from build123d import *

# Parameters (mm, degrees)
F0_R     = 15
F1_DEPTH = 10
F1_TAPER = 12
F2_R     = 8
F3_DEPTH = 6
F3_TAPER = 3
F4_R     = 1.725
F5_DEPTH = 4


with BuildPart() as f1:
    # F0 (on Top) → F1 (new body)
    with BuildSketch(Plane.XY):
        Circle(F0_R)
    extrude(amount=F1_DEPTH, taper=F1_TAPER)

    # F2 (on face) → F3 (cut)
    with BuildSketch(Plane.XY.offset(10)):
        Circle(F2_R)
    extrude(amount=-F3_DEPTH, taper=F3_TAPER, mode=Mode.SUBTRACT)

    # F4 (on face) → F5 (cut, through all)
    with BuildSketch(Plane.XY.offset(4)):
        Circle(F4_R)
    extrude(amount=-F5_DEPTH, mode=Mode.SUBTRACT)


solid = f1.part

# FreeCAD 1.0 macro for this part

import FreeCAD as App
import Part
import Sketcher

V = App.Vector

doc = App.newDocument("Part")
body = doc.addObject("PartDesign::Body", "Body")

# Sketch on XY plane
sketch1 = body.newObject("Sketcher::SketchObject", "Sketch")
sketch1.AttachmentSupport = (doc.getObject("XY_Plane"), [""])
sketch1.MapMode = "FlatFace"
sketch1.addGeometry(Part.Circle(V(0, 0, 0), V(0, 0, 1), 15), False)
sketch1.addConstraint(Sketcher.Constraint("Coincident", 0, 3, -1, 1))
sketch1.addConstraint(Sketcher.Constraint("Diameter", 0, 30.0))
pad1 = body.newObject("PartDesign::Pad", "Pad")
pad1.Profile = sketch1
pad1.Length = 10
pad1.TaperAngle = -12

# Sketch on XY plane
sketch2 = body.newObject("Sketcher::SketchObject", "Sketch001")
sketch2.AttachmentSupport = (doc.getObject("XY_Plane"), [""])
sketch2.MapMode = "FlatFace"
sketch2.AttachmentOffset = App.Placement(V(0, 0, 10), App.Rotation())
sketch2.addGeometry(Part.Circle(V(0, 0, 0), V(0, 0, 1), 8), False)
sketch2.addConstraint(Sketcher.Constraint("Coincident", 0, 3, -1, 1))
sketch2.addConstraint(Sketcher.Constraint("Diameter", 0, 16.0))
pocket1 = body.newObject("PartDesign::Pocket", "Pocket")
pocket1.Profile = sketch2
pocket1.Length = 6
pocket1.TaperAngle = -3

# Sketch on XY plane
sketch3 = body.newObject("Sketcher::SketchObject", "Sketch002")
sketch3.AttachmentSupport = (doc.getObject("XY_Plane"), [""])
sketch3.MapMode = "FlatFace"
sketch3.AttachmentOffset = App.Placement(V(0, 0, 4), App.Rotation())
sketch3.addGeometry(Part.Circle(V(0, 0, 0), V(0, 0, 1), 1.725), False)
sketch3.addConstraint(Sketcher.Constraint("Coincident", 0, 3, -1, 1))
sketch3.addConstraint(Sketcher.Constraint("Diameter", 0, 3.45))
pocket2 = body.newObject("PartDesign::Pocket", "Pocket001")
pocket2.Profile = sketch3
pocket2.Type = "ThroughAll"

doc.recompute()
